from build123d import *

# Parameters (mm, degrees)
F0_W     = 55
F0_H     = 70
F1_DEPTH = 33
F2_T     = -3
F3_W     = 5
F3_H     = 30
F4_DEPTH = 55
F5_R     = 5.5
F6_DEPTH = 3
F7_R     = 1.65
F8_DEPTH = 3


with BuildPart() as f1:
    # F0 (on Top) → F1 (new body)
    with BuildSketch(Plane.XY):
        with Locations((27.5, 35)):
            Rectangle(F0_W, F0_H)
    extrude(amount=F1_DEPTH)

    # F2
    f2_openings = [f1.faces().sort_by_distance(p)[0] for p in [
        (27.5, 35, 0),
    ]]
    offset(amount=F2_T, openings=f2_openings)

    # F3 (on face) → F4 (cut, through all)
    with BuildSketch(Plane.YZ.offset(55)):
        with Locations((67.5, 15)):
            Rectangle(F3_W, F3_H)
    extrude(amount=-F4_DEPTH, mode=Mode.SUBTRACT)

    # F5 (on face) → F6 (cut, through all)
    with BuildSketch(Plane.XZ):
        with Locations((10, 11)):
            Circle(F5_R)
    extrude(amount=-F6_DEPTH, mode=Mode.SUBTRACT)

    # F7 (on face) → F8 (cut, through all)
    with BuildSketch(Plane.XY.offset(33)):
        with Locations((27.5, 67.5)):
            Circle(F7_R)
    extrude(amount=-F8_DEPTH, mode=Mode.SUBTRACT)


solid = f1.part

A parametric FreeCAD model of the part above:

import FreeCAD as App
import Part
import Sketcher


def faces_at(feature, points):
    """Names of the faces that lie closest to the given points."""
    faces = feature.Shape.Faces
    near = lambda p: min(range(len(faces)), key=lambda i: faces[i].distToShape(Part.Vertex(*p))[0])
    return sorted({f"Face{near(p) + 1}" for p in points})


def add_polygon(sketch, points):
    """Adds a closed chain of lines whose ends are joined by coincident constraints."""
    first, n = sketch.GeometryCount, len(points)
    for a, b in zip(points, points[1:] + points[:1]):
        sketch.addGeometry(Part.LineSegment(App.Vector(*a, 0), App.Vector(*b, 0)), False)
    for i in range(n):
        sketch.addConstraint(Sketcher.Constraint("Coincident", first + i, 2, first + (i + 1) % n, 1))

doc = App.newDocument("Part")
body = doc.addObject("PartDesign::Body", "Body")

# Sketch on XY plane
sketch1 = body.newObject("Sketcher::SketchObject", "Sketch")
sketch1.AttachmentSupport = (doc.getObject("XY_Plane"), [""])
sketch1.MapMode = "FlatFace"
add_polygon(sketch1, [(0, 70), (0, 0), (55, 0), (55, 70)])  # lines 0-3
sketch1.addConstraint([
    Sketcher.Constraint("Vertical", 0),
    Sketcher.Constraint("Horizontal", 1),
    Sketcher.Constraint("Vertical", 2),
    Sketcher.Constraint("Horizontal", 3),
    Sketcher.Constraint("Coincident", 0, 2, -1, 1),
    Sketcher.Constraint("DistanceX", 1, 1, 1, 2, 55.0),
    Sketcher.Constraint("DistanceY", 0, 2, 0, 1, 70.0),
])
pad1 = body.newObject("PartDesign::Pad", "Pad")
pad1.Profile = sketch1
pad1.Length = 33
doc.recompute()

thickness = body.newObject("PartDesign::Thickness", "Thickness")
thickness.Base = (pad1, faces_at(pad1, [(27.5, 35, 0)]))
thickness.Value = 3
thickness.Reversed = True
thickness.Join = "Arc"

# Sketch on YZ plane
sketch2 = body.newObject("Sketcher::SketchObject", "Sketch001")
sketch2.AttachmentSupport = (doc.getObject("YZ_Plane"), [""])
sketch2.MapMode = "FlatFace"
sketch2.AttachmentOffset = App.Placement(App.Vector(0, 0, 55), App.Rotation())
add_polygon(sketch2, [(65, 30), (65, 0), (70, 0), (70, 30)])  # lines 0-3
sketch2.addConstraint([
    Sketcher.Constraint("Vertical", 0),
    Sketcher.Constraint("Horizontal", 1),
    Sketcher.Constraint("Vertical", 2),
    Sketcher.Constraint("Horizontal", 3),
    Sketcher.Constraint("PointOnObject", 0, 2, -1),
    Sketcher.Constraint("DistanceX", 1, 1, 1, 2, 5.0),
    Sketcher.Constraint("DistanceY", 0, 2, 0, 1, 30.0),
    Sketcher.Constraint("DistanceX", -1, 1, 0, 2, 65.0),
])
pocket1 = body.newObject("PartDesign::Pocket", "Pocket")
pocket1.Profile = sketch2
pocket1.Type = "ThroughAll"

# Sketch on XZ plane
sketch3 = body.newObject("Sketcher::SketchObject", "Sketch002")
sketch3.AttachmentSupport = (doc.getObject("XZ_Plane"), [""])
sketch3.MapMode = "FlatFace"
sketch3.addGeometry(Part.Circle(App.Vector(10, 11, 0), App.Vector(0, 0, 1), 6), False)
sketch3.addConstraint([
    Sketcher.Constraint("Diameter", 0, 11.0),
    Sketcher.Constraint("DistanceX", -1, 1, 0, 3, 10.0),
    Sketcher.Constraint("DistanceY", -1, 1, 0, 3, 11.0),
])
pocket2 = body.newObject("PartDesign::Pocket", "Pocket001")
pocket2.Profile = sketch3
pocket2.Type = "ThroughAll"

# Sketch on XY plane
sketch4 = body.newObject("Sketcher::SketchObject", "Sketch003")
sketch4.AttachmentSupport = (doc.getObject("XY_Plane"), [""])
sketch4.MapMode = "FlatFace"
sketch4.AttachmentOffset = App.Placement(App.Vector(0, 0, 33), App.Rotation())
sketch4.addGeometry(Part.Circle(App.Vector(27.5, 67.5, 0), App.Vector(0, 0, 1), 1.6), False)
sketch4.addConstraint([
    Sketcher.Constraint("Diameter", 0, 3.3),
    Sketcher.Constraint("DistanceX", -1, 1, 0, 3, 27.5),
    Sketcher.Constraint("DistanceY", -1, 1, 0, 3, 67.5),
])
pocket3 = body.newObject("PartDesign::Pocket", "Pocket002")
pocket3.Profile = sketch4
pocket3.Type = "ThroughAll"

doc.recompute()
